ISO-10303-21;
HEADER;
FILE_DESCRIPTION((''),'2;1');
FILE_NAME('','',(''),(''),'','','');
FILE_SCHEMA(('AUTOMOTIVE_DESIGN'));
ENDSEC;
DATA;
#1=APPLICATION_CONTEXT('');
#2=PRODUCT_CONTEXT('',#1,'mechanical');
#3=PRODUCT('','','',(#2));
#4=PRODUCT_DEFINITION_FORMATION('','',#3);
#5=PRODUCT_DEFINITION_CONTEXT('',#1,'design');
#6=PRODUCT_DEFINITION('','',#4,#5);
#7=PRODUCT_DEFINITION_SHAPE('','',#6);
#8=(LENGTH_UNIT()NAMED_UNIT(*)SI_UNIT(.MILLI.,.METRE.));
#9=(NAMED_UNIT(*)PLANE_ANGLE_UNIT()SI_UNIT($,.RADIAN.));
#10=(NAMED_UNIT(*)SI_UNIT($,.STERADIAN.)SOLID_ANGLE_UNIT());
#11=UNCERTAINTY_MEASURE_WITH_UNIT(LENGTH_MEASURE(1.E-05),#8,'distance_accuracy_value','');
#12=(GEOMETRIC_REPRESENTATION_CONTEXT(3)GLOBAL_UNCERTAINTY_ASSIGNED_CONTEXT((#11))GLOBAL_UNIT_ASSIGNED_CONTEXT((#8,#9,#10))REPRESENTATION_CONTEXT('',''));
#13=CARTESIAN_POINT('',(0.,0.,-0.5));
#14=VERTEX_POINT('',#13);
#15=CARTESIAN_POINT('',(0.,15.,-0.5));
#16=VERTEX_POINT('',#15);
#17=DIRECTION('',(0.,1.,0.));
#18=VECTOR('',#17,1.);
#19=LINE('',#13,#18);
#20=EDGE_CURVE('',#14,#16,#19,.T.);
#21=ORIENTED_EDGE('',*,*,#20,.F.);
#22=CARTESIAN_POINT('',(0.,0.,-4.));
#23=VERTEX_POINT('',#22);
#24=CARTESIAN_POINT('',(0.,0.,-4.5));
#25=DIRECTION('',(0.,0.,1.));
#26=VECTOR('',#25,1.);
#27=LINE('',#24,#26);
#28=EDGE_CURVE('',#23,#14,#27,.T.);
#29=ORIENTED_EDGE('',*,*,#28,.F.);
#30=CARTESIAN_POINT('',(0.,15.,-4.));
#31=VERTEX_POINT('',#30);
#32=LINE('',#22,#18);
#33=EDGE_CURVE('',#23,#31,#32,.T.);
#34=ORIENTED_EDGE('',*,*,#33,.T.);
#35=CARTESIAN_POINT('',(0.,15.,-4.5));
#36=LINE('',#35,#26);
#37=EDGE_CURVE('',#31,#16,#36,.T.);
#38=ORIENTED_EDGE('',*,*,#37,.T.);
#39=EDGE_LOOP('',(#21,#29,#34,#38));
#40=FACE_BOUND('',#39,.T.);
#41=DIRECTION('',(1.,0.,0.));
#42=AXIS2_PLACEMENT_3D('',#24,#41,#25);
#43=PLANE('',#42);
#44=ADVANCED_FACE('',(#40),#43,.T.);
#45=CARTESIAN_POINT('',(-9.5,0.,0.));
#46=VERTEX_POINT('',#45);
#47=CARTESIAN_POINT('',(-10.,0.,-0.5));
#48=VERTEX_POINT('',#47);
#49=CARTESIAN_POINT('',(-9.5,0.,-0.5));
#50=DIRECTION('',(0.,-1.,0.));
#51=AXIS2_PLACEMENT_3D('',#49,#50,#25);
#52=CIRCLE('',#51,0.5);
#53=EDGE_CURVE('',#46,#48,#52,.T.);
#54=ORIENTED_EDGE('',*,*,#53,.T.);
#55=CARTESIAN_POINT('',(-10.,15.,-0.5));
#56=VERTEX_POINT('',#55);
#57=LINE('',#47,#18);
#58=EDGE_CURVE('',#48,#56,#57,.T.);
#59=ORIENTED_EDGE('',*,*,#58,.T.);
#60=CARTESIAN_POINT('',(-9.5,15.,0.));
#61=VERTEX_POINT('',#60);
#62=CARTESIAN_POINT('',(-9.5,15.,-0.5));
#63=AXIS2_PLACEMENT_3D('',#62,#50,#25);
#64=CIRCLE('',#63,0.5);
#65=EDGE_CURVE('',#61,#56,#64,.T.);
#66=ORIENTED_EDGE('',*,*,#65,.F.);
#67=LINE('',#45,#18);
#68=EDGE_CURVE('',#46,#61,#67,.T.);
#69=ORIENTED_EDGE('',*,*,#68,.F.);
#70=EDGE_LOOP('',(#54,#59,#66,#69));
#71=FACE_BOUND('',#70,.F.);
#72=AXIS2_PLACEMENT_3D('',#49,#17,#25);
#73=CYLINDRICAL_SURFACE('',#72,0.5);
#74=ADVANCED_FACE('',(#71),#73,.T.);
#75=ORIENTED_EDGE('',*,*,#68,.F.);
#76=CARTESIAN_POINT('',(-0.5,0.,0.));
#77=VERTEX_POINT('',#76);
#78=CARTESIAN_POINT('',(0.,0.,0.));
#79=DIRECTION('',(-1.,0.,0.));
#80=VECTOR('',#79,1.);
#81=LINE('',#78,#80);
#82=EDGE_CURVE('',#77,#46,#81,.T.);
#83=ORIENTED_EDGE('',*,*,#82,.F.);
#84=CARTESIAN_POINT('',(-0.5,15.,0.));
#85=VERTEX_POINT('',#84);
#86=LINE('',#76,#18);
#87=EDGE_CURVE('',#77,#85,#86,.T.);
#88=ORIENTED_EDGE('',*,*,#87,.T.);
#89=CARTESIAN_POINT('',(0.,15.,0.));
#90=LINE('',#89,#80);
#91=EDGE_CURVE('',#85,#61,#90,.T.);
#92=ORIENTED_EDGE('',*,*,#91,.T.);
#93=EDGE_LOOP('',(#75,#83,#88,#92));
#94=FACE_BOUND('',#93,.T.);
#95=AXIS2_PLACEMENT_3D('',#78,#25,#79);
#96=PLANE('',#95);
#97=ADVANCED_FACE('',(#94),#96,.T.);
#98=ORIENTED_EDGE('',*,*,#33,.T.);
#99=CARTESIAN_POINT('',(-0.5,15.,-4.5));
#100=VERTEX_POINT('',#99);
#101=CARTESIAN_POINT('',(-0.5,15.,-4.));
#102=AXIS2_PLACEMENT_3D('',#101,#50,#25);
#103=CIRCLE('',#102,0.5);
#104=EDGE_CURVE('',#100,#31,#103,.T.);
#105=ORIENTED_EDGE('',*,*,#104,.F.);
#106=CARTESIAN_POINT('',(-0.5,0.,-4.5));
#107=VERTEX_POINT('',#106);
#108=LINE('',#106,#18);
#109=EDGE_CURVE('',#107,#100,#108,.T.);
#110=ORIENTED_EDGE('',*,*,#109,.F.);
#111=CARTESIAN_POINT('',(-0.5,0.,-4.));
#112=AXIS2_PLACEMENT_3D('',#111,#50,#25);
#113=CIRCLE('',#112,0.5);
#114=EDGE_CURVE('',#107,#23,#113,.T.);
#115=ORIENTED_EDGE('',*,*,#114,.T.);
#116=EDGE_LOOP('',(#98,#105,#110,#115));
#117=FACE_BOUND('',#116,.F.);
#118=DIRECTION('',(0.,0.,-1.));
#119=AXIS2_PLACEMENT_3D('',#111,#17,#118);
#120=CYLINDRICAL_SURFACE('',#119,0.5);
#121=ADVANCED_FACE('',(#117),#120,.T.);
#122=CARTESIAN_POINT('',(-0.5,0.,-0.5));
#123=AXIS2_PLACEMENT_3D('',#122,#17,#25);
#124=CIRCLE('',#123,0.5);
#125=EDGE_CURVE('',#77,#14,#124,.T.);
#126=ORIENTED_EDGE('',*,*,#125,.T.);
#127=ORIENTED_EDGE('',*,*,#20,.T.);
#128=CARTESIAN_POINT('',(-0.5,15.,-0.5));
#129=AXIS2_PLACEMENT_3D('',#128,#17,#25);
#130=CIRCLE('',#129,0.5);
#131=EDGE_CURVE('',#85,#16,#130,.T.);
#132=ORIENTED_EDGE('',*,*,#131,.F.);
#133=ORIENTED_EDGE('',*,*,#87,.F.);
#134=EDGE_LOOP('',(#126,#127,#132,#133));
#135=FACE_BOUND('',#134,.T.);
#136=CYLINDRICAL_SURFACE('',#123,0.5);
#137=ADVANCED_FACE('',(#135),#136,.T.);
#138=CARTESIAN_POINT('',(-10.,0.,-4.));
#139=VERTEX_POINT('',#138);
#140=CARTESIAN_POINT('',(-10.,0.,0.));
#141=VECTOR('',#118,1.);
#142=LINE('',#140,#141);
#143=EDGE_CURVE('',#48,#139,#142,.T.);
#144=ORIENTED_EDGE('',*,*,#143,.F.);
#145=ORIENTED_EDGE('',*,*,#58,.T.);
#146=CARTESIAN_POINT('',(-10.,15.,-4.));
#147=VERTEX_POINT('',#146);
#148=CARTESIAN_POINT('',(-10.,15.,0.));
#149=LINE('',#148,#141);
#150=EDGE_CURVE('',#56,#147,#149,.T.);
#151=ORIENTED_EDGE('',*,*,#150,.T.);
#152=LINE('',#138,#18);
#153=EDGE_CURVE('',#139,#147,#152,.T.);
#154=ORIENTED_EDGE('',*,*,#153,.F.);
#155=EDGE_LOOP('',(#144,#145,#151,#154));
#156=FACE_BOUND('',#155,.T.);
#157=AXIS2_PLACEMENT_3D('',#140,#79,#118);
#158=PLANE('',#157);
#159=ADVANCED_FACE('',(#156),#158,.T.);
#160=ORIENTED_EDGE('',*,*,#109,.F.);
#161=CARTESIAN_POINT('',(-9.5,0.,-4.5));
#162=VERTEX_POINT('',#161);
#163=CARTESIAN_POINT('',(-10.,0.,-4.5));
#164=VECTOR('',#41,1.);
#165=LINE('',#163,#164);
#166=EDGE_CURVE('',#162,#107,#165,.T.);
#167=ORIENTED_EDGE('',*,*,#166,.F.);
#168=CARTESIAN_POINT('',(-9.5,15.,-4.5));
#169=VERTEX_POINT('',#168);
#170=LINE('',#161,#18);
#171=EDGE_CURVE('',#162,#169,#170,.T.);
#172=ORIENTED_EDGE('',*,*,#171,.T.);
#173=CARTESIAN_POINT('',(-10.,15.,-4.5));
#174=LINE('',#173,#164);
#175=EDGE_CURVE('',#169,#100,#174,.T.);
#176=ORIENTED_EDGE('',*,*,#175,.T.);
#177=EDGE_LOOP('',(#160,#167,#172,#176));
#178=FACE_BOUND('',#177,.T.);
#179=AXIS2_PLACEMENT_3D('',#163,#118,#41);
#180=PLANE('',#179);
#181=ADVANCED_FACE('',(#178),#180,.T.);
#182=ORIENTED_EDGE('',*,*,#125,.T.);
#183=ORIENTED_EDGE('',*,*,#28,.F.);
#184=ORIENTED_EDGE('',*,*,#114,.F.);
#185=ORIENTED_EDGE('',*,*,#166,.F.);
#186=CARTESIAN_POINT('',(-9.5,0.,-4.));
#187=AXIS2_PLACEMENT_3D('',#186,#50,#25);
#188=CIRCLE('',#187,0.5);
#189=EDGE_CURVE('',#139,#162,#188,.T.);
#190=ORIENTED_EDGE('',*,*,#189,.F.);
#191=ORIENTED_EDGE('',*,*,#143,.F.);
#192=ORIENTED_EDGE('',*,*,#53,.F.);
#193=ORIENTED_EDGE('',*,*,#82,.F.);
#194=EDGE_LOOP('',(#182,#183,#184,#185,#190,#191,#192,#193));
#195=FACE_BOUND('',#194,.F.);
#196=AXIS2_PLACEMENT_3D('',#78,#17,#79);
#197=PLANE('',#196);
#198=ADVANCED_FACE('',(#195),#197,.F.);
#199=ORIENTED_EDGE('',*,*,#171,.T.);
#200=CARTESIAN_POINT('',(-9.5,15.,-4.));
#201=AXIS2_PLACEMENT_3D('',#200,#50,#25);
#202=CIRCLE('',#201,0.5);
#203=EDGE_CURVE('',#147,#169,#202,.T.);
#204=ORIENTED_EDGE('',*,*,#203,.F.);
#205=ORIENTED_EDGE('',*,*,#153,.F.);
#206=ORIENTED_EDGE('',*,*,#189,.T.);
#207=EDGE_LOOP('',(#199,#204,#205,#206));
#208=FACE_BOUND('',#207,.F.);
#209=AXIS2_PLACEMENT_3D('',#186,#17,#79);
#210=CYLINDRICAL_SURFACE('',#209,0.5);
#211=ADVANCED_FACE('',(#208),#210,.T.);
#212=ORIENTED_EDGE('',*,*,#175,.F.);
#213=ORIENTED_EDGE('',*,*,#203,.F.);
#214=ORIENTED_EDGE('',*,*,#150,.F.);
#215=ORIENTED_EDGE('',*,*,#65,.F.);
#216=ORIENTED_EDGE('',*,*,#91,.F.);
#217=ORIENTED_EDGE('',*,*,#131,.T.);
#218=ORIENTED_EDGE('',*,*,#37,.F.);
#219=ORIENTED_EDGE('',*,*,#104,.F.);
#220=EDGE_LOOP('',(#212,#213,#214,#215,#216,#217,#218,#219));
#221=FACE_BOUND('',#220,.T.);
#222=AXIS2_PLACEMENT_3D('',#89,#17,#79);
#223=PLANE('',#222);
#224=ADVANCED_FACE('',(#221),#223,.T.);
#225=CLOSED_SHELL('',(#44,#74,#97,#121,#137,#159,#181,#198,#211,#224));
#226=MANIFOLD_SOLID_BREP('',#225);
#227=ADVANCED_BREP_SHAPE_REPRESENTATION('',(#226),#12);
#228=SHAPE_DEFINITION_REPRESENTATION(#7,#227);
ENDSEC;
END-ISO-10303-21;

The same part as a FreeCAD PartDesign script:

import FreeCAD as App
import Part
import Sketcher
Q = App.Units.Quantity


def edges_at(feature, points):
    """Names of the edges that pass closest to the given points."""
    edges = feature.Shape.Edges
    near = lambda p: min(range(len(edges)), key=lambda i: edges[i].distToShape(Part.Vertex(*p))[0])
    return sorted({f"Edge{near(p) + 1}" for p in points})


def add_polygon(sketch, points):
    """Adds a closed chain of lines whose ends are joined by coincident constraints."""
    first, n = sketch.GeometryCount, len(points)
    for a, b in zip(points, points[1:] + points[:1]):
        sketch.addGeometry(Part.LineSegment(App.Vector(*a, 0), App.Vector(*b, 0)), False)
    for i in range(n):
        sketch.addConstraint(Sketcher.Constraint("Coincident", first + i, 2, first + (i + 1) % n, 1))

doc = App.newDocument("Part")
params = doc.addObject("Spreadsheet::Sheet", "Params")
for row, (alias, value) in enumerate([
    ("sketch1_width", "10 mm"),
    ("sketch1_height", "4.5 mm"),
    ("pad1_length", "15 mm"),
    ("fillet_radius", "0.5 mm"),
], start=1):
    params.set(f"A{row}", alias)
    params.set(f"B{row}", "=" + value)
    params.setAlias(f"B{row}", alias)

body = doc.addObject("PartDesign::Body", "Body")

# Sketch on XZ plane
sketch1 = doc.addObject("Sketcher::SketchObject", "Sketch")
body.addObject(sketch1)
sketch1.AttachmentSupport = (doc.XZ_Plane, [""])
sketch1.MapMode = "FlatFace"
add_polygon(sketch1, [(-10, 0), (0, 0), (0, -4.5), (-10, -4.5)])  # lines 0-3
sketch1.addConstraint([
    Sketcher.Constraint("Horizontal", 0),
    Sketcher.Constraint("Vertical", 1),
    Sketcher.Constraint("Horizontal", 2),
    Sketcher.Constraint("Vertical", 3),
    Sketcher.Constraint("Coincident", 0, 2, -1, 1),
    Sketcher.Constraint("DistanceX", 0, 1, 0, 2, Q("10 mm")),
    Sketcher.Constraint("DistanceY", 1, 2, 1, 1, Q("4.5 mm")),
])
sketch1.setExpression("Constraints[9]", "Params.sketch1_width")
sketch1.setExpression("Constraints[10]", "Params.sketch1_height")
pad1 = doc.addObject("PartDesign::Pad", "Pad")
body.addObject(pad1)
pad1.Profile = sketch1
pad1.setExpression("Length", "Params.pad1_length")
pad1.Reversed = True
doc.recompute()

fillet = doc.addObject("PartDesign::Fillet", "Fillet")
body.addObject(fillet)
fillet.Base = (pad1, edges_at(pad1, [
    (0, 7.5, 0),
    (-10, 7.5, 0),
    (0, 7.5, -4.5),
    (-10, 7.5, -4.5),
]))
fillet.setExpression("Radius", "Params.fillet_radius")

doc.recompute()
